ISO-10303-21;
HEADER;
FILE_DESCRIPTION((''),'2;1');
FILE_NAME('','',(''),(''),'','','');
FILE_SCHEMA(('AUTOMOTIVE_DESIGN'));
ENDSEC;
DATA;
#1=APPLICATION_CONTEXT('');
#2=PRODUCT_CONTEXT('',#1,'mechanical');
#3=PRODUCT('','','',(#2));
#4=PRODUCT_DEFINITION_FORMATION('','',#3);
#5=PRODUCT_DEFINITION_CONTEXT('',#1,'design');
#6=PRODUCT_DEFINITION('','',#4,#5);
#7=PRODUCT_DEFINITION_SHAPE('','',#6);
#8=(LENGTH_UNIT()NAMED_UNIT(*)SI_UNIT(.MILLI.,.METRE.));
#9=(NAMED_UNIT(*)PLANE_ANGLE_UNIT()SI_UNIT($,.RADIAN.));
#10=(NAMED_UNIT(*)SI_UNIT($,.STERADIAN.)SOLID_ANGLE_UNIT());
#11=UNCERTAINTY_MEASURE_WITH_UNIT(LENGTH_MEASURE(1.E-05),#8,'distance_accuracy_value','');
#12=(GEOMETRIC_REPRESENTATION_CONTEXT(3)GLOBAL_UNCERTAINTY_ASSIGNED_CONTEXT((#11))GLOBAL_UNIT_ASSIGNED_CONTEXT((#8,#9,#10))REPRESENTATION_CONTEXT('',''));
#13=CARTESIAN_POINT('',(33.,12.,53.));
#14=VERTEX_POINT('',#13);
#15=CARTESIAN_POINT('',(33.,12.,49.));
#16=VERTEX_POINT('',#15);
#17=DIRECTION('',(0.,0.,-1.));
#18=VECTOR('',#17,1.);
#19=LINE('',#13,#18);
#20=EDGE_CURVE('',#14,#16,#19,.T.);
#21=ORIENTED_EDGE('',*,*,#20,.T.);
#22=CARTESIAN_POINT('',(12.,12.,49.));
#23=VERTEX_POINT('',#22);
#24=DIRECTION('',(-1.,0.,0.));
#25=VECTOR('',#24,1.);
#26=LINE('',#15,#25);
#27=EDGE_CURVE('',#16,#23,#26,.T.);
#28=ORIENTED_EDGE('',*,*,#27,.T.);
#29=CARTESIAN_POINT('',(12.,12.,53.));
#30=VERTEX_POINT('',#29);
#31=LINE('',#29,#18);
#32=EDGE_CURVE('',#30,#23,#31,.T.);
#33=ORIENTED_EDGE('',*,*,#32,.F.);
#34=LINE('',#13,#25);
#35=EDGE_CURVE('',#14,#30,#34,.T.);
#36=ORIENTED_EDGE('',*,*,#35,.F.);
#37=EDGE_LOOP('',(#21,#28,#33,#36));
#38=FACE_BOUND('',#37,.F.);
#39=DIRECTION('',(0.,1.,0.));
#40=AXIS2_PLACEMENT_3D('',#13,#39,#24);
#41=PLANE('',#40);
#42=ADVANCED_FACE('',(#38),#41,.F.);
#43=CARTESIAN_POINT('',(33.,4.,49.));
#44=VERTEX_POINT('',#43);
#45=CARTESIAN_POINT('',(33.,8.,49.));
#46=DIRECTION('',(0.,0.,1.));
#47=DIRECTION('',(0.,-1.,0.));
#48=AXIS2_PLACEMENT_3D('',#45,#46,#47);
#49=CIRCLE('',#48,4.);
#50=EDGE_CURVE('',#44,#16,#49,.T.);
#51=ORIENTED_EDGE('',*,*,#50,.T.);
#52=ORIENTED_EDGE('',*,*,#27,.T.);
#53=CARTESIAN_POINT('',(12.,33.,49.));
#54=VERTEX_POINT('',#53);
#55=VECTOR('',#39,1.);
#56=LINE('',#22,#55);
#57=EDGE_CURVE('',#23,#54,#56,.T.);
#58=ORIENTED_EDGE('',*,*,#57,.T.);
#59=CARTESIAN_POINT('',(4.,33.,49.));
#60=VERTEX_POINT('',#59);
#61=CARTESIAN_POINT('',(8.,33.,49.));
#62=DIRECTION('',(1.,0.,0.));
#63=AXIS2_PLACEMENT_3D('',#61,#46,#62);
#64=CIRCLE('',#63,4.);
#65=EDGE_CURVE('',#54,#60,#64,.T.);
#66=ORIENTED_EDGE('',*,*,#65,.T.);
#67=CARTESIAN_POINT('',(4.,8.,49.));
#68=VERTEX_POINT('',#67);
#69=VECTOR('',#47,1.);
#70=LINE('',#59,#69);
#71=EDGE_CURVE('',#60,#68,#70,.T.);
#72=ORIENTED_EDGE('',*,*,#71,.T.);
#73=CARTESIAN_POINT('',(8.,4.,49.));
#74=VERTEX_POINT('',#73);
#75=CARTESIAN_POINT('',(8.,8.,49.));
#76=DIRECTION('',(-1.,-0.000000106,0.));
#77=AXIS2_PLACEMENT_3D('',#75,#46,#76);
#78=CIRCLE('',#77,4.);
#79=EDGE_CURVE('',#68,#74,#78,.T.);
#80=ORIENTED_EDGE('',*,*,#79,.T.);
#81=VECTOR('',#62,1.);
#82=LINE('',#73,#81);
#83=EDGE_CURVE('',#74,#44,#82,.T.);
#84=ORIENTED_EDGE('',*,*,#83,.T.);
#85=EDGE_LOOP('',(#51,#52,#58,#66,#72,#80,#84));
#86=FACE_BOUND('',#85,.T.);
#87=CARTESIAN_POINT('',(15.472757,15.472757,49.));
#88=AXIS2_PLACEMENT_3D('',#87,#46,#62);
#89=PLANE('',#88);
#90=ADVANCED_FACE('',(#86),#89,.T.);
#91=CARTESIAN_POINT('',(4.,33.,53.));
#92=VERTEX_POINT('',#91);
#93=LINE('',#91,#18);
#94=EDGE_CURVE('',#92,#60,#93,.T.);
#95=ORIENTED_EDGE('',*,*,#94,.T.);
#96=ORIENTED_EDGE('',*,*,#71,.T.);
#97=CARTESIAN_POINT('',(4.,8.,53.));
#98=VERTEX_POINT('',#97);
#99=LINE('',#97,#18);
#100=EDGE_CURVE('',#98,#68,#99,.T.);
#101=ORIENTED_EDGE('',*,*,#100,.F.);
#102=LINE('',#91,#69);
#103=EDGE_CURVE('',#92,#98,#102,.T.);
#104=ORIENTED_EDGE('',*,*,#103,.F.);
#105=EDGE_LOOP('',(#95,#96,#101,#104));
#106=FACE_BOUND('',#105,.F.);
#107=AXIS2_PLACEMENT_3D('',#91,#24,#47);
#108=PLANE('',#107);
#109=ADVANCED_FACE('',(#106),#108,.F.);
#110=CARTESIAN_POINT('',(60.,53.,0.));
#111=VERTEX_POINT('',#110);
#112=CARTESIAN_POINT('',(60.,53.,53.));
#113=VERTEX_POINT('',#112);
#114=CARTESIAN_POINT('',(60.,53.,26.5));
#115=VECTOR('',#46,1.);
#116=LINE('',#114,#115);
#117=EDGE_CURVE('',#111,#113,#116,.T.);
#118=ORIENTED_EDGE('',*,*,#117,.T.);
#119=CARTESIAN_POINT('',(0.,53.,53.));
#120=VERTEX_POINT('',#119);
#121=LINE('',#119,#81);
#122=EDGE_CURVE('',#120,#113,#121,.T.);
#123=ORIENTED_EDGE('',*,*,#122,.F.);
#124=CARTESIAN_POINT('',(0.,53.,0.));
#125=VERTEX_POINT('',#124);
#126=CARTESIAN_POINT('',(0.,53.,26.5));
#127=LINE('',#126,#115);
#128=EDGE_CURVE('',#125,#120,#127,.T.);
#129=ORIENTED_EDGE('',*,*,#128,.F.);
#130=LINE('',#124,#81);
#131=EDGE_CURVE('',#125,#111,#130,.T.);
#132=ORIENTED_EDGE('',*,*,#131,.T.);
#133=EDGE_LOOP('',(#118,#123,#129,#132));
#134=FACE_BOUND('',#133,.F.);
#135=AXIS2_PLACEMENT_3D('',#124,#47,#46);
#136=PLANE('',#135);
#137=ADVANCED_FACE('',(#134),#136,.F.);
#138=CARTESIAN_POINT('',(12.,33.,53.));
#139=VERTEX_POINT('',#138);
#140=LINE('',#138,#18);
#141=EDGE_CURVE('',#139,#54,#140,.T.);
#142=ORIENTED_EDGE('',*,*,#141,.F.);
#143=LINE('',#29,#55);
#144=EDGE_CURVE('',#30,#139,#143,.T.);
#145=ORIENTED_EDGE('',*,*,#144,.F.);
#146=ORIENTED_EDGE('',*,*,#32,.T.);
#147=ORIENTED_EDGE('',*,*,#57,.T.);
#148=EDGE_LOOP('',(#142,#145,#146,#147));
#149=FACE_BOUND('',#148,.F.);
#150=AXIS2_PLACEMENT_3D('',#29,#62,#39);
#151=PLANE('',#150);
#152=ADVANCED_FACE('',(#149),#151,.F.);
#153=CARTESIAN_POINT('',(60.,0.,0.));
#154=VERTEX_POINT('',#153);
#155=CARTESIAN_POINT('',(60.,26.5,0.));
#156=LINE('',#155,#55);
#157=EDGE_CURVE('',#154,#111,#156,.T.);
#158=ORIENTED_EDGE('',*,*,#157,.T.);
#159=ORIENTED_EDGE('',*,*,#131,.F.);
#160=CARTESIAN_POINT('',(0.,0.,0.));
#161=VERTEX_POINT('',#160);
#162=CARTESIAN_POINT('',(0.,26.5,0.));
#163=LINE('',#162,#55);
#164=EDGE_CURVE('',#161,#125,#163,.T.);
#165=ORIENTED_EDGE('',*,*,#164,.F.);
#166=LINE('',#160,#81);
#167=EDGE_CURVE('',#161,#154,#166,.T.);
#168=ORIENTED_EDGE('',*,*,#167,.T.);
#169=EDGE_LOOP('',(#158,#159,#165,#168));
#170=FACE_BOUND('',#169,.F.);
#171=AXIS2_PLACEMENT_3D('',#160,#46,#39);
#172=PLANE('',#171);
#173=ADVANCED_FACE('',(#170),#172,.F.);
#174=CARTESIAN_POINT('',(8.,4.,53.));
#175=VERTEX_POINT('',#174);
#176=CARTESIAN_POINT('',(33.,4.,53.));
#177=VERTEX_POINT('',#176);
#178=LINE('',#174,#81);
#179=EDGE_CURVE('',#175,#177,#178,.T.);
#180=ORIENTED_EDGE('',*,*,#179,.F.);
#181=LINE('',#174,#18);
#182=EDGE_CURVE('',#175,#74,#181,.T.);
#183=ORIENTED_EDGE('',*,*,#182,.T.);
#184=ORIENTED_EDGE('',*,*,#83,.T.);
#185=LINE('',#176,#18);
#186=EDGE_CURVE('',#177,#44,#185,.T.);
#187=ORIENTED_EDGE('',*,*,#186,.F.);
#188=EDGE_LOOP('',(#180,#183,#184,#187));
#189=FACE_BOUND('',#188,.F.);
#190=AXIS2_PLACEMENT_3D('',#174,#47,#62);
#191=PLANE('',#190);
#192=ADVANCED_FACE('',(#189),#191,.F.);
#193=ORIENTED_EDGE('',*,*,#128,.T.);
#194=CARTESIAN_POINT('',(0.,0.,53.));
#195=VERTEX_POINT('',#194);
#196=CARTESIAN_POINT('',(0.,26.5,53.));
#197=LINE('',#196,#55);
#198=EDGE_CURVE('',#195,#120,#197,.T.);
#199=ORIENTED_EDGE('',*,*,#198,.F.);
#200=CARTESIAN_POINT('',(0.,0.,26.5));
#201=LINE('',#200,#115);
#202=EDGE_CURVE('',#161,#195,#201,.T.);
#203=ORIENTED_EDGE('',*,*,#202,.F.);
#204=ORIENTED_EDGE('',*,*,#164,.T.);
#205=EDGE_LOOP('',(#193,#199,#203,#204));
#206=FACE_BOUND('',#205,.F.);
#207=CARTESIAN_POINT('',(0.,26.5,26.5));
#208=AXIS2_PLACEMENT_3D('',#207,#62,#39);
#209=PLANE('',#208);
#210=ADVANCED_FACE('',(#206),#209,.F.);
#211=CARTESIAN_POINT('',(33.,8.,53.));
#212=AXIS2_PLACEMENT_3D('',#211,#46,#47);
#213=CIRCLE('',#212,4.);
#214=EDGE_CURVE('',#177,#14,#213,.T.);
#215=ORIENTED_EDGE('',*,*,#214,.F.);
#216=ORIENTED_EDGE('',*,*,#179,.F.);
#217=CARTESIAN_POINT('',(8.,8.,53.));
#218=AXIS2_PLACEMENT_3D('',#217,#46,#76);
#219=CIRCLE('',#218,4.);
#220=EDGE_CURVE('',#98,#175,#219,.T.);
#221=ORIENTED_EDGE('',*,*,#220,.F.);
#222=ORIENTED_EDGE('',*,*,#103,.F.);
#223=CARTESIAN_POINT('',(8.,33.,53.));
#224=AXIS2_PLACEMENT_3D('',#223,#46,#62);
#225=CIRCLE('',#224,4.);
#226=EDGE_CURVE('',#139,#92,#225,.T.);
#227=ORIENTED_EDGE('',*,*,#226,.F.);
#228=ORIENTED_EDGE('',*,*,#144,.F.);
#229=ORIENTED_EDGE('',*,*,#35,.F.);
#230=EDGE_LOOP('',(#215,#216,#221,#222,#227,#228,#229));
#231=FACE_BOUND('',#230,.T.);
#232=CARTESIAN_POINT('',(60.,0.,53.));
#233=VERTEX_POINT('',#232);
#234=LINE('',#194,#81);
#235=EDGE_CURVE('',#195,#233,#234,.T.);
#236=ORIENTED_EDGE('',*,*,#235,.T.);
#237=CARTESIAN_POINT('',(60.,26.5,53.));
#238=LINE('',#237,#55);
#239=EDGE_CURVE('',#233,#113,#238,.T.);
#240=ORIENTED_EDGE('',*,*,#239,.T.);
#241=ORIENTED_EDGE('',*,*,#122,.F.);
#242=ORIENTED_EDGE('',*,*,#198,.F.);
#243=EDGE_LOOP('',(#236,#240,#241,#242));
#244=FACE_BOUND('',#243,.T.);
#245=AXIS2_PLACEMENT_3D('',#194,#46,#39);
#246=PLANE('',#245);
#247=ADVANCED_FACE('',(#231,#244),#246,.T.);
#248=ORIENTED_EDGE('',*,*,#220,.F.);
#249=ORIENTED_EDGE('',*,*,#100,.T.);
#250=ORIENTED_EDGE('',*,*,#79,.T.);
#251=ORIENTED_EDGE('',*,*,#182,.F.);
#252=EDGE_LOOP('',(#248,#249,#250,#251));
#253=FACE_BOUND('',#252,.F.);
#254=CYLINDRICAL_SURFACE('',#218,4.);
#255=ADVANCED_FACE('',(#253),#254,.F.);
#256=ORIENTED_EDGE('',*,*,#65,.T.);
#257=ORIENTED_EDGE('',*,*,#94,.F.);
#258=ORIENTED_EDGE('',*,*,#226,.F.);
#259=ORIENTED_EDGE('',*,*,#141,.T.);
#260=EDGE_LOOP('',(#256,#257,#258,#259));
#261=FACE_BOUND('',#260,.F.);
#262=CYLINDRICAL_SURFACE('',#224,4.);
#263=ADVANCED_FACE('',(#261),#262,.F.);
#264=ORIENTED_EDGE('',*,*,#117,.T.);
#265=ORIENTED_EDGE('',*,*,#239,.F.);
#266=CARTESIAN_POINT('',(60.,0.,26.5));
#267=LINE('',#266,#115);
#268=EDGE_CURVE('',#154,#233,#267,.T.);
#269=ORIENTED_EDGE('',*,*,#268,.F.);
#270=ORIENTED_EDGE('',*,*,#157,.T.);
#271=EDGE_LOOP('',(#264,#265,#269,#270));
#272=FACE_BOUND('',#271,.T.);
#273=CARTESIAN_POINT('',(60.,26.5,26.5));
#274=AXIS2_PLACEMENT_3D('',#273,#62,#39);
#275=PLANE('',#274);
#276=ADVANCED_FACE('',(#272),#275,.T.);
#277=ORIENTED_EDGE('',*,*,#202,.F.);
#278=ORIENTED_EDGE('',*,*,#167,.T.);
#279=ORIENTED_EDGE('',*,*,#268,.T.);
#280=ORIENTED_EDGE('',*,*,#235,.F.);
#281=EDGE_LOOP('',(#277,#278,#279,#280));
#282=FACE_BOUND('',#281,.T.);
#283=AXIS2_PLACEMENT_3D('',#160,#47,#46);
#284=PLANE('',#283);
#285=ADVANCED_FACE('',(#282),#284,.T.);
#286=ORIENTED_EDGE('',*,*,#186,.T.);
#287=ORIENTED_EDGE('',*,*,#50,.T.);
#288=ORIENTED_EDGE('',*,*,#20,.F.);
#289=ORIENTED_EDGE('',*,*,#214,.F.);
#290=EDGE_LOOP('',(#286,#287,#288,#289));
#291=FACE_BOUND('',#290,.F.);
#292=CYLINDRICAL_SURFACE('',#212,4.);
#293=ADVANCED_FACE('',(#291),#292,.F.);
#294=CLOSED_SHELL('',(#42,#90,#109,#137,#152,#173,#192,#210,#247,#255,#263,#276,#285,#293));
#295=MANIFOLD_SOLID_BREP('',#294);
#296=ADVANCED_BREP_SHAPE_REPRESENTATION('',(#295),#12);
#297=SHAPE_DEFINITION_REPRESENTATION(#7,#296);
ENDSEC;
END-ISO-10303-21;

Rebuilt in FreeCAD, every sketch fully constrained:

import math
import FreeCAD as App
import Part
import Sketcher
Q = App.Units.Quantity


def add_polygon(sketch, points):
    """Adds a closed chain of lines whose ends are joined by coincident constraints."""
    first, n = sketch.GeometryCount, len(points)
    for a, b in zip(points, points[1:] + points[:1]):
        sketch.addGeometry(Part.LineSegment(App.Vector(*a, 0), App.Vector(*b, 0)), False)
    for i in range(n):
        sketch.addConstraint(Sketcher.Constraint("Coincident", first + i, 2, first + (i + 1) % n, 1))

doc = App.newDocument("Part")
body = doc.addObject("PartDesign::Body", "Body")

sketch1 = body.newObject("Sketcher::SketchObject", "Sketch")
sketch1.AttachmentSupport = (doc.getObject("YZ_Plane"), [""])
sketch1.MapMode = "FlatFace"
add_polygon(sketch1, [(0, 53), (0, 0), (53, 0), (53, 53)])
sketch1.addConstraint(Sketcher.Constraint("Vertical", 0))
sketch1.addConstraint(Sketcher.Constraint("Horizontal", 1))
sketch1.addConstraint(Sketcher.Constraint("Vertical", 2))
sketch1.addConstraint(Sketcher.Constraint("Horizontal", 3))
sketch1.addConstraint(Sketcher.Constraint("Coincident", 0, 2, -1, 1))
sketch1.addConstraint(Sketcher.Constraint("Equal", 3, 0))
sketch1.addConstraint(Sketcher.Constraint("DistanceX", 1, 1, 1, 2, Q("53 mm")))
pad1 = body.newObject("PartDesign::Pad", "Pad")
pad1.Profile = sketch1
pad1.Length = 60

sketch2 = body.newObject("Sketcher::SketchObject", "Sketch001")
sketch2.AttachmentSupport = (doc.getObject("XY_Plane"), [""])
sketch2.MapMode = "FlatFace"
sketch2.AttachmentOffset = App.Placement(App.Vector(0, 0, 53), App.Rotation())
sketch2.addGeometry(Part.ArcOfCircle(Part.Circle(App.Vector(8, 33, 0), App.Vector(0, 0, 1), 4), math.radians(0), math.radians(180)), False)
sketch2.addGeometry(Part.LineSegment(App.Vector(4, 33, 0), App.Vector(4, 8, 0)), False)
sketch2.addGeometry(Part.ArcOfCircle(Part.Circle(App.Vector(8, 8, 0), App.Vector(0, 0, 1), 4), math.radians(-180), math.radians(-90)), False)
sketch2.addGeometry(Part.LineSegment(App.Vector(8, 4, 0), App.Vector(33, 4, 0)), False)
sketch2.addGeometry(Part.ArcOfCircle(Part.Circle(App.Vector(33, 8, 0), App.Vector(0, 0, 1), 4), math.radians(-90), math.radians(90)), False)
sketch2.addGeometry(Part.LineSegment(App.Vector(33, 12, 0), App.Vector(12, 12, 0)), False)
sketch2.addGeometry(Part.LineSegment(App.Vector(12, 12, 0), App.Vector(12, 33, 0)), False)
sketch2.addConstraint(Sketcher.Constraint("Tangent", 0, 2, 1, 1))
sketch2.addConstraint(Sketcher.Constraint("Tangent", 1, 2, 2, 1))
sketch2.addConstraint(Sketcher.Constraint("Tangent", 2, 2, 3, 1))
sketch2.addConstraint(Sketcher.Constraint("Tangent", 3, 2, 4, 1))
sketch2.addConstraint(Sketcher.Constraint("Tangent", 4, 2, 5, 1))
sketch2.addConstraint(Sketcher.Constraint("Coincident", 5, 2, 6, 1))
sketch2.addConstraint(Sketcher.Constraint("Tangent", 6, 2, 0, 1))
sketch2.addConstraint(Sketcher.Constraint("Vertical", 1))
sketch2.addConstraint(Sketcher.Constraint("Horizontal", 3))
sketch2.addConstraint(Sketcher.Constraint("Horizontal", 5))
sketch2.addConstraint(Sketcher.Constraint("Vertical", 6))
sketch2.addConstraint(Sketcher.Constraint("Equal", 0, 2))
sketch2.addConstraint(Sketcher.Constraint("Equal", 2, 4))
sketch2.addConstraint(Sketcher.Constraint("Equal", 3, 1))
sketch2.addConstraint(Sketcher.Constraint("Radius", 0, Q("4 mm")))
sketch2.addConstraint(Sketcher.Constraint("DistanceX", 3, 1, 3, 2, Q("25 mm")))
sketch2.addConstraint(Sketcher.Constraint("DistanceX", -1, 1, 0, 3, Q("8 mm")))
sketch2.addConstraint(Sketcher.Constraint("DistanceY", -1, 1, 0, 3, Q("33 mm")))
pocket1 = body.newObject("PartDesign::Pocket", "Pocket")
pocket1.Profile = sketch2
pocket1.Length = 4

doc.recompute()
